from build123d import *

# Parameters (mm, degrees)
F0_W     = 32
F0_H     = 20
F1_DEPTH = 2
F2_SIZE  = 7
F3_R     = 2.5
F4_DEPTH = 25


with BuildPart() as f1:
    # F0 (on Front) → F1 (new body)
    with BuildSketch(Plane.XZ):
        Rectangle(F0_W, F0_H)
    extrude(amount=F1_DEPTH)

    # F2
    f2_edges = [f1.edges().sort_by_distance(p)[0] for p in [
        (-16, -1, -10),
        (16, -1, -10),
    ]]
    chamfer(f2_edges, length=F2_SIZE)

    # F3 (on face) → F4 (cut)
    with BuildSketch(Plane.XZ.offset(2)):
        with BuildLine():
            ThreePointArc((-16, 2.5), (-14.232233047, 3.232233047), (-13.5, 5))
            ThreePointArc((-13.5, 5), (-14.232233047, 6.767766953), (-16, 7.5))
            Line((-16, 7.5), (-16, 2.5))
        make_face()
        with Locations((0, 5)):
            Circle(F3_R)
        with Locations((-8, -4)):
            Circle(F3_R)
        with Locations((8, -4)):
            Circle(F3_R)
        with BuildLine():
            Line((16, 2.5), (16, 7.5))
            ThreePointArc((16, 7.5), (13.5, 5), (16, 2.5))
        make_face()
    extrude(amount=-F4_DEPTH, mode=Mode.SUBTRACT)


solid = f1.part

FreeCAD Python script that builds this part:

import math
import FreeCAD as App
import Part
import Sketcher

V = App.Vector
Q = App.Units.Quantity


def edges_at(feature, points):
    """Names of the edges that pass closest to the given points."""
    edges = feature.Shape.Edges
    near = lambda p: min(range(len(edges)), key=lambda i: edges[i].distToShape(Part.Vertex(*p))[0])
    return sorted({f"Edge{near(p) + 1}" for p in points})

doc = App.newDocument("Part")
body = doc.addObject("PartDesign::Body", "Body")

# Sketch on XZ plane
sketch1 = body.newObject("Sketcher::SketchObject", "Sketch")
sketch1.AttachmentSupport = (doc.getObject("XZ_Plane"), [""])
sketch1.MapMode = "FlatFace"
sketch1.addGeometry([
    Part.LineSegment(V(-16, 10, 0), V(-16, -10, 0)),
    Part.LineSegment(V(-16, -10, 0), V(16, -10, 0)),
    Part.LineSegment(V(16, -10, 0), V(16, 10, 0)),
    Part.LineSegment(V(16, 10, 0), V(-16, 10, 0)),
], False)
sketch1.addConstraint([
    Sketcher.Constraint("Coincident", 0, 2, 1, 1),
    Sketcher.Constraint("Coincident", 1, 2, 2, 1),
    Sketcher.Constraint("Coincident", 2, 2, 3, 1),
    Sketcher.Constraint("Coincident", 3, 2, 0, 1),
    Sketcher.Constraint("Vertical", 0),
    Sketcher.Constraint("Horizontal", 1),
    Sketcher.Constraint("Vertical", 2),
    Sketcher.Constraint("Horizontal", 3),
    Sketcher.Constraint("Symmetric", 0, 2, 2, 2, -1, 1),
    Sketcher.Constraint("DistanceX", 1, 1, 1, 2, Q("32 mm")),
    Sketcher.Constraint("DistanceY", 0, 2, 0, 1, Q("20 mm")),
])
pad1 = body.newObject("PartDesign::Pad", "Pad")
pad1.Profile = sketch1
pad1.Length = 2
doc.recompute()

chamfer = body.newObject("PartDesign::Chamfer", "Chamfer")
chamfer.Base = (pad1, edges_at(pad1, [(-16, -1, -10), (16, -1, -10)]))
chamfer.Size = 7

# Sketch on XZ plane
sketch2 = body.newObject("Sketcher::SketchObject", "Sketch001")
sketch2.AttachmentSupport = (doc.getObject("XZ_Plane"), [""])
sketch2.MapMode = "FlatFace"
sketch2.AttachmentOffset = App.Placement(V(0, 0, 2), App.Rotation())
sketch2.addGeometry([
    Part.ArcOfCircle(Part.Circle(V(-16, 5, 0), V(0, 0, 1), 2.5), math.radians(-90), math.radians(0)),  # 0
    Part.ArcOfCircle(Part.Circle(V(-16, 5, 0), V(0, 0, 1), 2.5), math.radians(0), math.radians(90)),  # 1
    Part.LineSegment(V(-16, 7.5, 0), V(-16, 2.5, 0)),  # 2
    Part.Circle(V(0, 5, 0), V(0, 0, 1), 2.5),  # 3
    Part.Circle(V(-8, -4, 0), V(0, 0, 1), 2.5),  # 4
    Part.Circle(V(8, -4, 0), V(0, 0, 1), 2.5),  # 5
    Part.LineSegment(V(16, 2.5, 0), V(16, 7.5, 0)),  # 6
    Part.ArcOfCircle(Part.Circle(V(16, 5, 0), V(0, 0, 1), 2.5), math.radians(90), math.radians(270)),  # 7
], False)
sketch2.addConstraint([
    Sketcher.Constraint("Tangent", 0, 2, 1, 1),
    Sketcher.Constraint("Coincident", 1, 2, 2, 1),
    Sketcher.Constraint("Coincident", 2, 2, 0, 1),
    Sketcher.Constraint("Coincident", 6, 1, 7, 2),
    Sketcher.Constraint("Coincident", 7, 1, 6, 2),
    Sketcher.Constraint("Vertical", 2),
    Sketcher.Constraint("Vertical", 6),
    Sketcher.Constraint("Equal", 0, 1),
    Sketcher.Constraint("Equal", 1, 3),
    Sketcher.Constraint("Equal", 3, 4),
    Sketcher.Constraint("Equal", 4, 5),
    Sketcher.Constraint("Equal", 5, 7),
    Sketcher.Constraint("Symmetric", 4, 3, 5, 3, -2),
    Sketcher.Constraint("Symmetric", 0, 3, 7, 3, -2),
    Sketcher.Constraint("PointOnObject", 3, 3, -2),
    Sketcher.Constraint("Horizontal", 1, 3, 3, 3),
    Sketcher.Constraint("Horizontal", 7, 3, 0, 2),
    Sketcher.Constraint("Vertical", 0, 3, 1, 2),
    Sketcher.Constraint("Vertical", 7, 3, 6, 1),
    Sketcher.Constraint("Diameter", 3, Q("5 mm")),
    Sketcher.Constraint("DistanceX", 0, 3, -1, 1, Q("16 mm")),
    Sketcher.Constraint("DistanceY", -1, 1, 0, 3, Q("5 mm")),
    Sketcher.Constraint("DistanceX", 4, 3, -1, 1, Q("8 mm")),
    Sketcher.Constraint("DistanceY", 4, 3, -1, 1, Q("4 mm")),
])
pocket1 = body.newObject("PartDesign::Pocket", "Pocket")
pocket1.Profile = sketch2
pocket1.Length = 25

doc.recompute()
